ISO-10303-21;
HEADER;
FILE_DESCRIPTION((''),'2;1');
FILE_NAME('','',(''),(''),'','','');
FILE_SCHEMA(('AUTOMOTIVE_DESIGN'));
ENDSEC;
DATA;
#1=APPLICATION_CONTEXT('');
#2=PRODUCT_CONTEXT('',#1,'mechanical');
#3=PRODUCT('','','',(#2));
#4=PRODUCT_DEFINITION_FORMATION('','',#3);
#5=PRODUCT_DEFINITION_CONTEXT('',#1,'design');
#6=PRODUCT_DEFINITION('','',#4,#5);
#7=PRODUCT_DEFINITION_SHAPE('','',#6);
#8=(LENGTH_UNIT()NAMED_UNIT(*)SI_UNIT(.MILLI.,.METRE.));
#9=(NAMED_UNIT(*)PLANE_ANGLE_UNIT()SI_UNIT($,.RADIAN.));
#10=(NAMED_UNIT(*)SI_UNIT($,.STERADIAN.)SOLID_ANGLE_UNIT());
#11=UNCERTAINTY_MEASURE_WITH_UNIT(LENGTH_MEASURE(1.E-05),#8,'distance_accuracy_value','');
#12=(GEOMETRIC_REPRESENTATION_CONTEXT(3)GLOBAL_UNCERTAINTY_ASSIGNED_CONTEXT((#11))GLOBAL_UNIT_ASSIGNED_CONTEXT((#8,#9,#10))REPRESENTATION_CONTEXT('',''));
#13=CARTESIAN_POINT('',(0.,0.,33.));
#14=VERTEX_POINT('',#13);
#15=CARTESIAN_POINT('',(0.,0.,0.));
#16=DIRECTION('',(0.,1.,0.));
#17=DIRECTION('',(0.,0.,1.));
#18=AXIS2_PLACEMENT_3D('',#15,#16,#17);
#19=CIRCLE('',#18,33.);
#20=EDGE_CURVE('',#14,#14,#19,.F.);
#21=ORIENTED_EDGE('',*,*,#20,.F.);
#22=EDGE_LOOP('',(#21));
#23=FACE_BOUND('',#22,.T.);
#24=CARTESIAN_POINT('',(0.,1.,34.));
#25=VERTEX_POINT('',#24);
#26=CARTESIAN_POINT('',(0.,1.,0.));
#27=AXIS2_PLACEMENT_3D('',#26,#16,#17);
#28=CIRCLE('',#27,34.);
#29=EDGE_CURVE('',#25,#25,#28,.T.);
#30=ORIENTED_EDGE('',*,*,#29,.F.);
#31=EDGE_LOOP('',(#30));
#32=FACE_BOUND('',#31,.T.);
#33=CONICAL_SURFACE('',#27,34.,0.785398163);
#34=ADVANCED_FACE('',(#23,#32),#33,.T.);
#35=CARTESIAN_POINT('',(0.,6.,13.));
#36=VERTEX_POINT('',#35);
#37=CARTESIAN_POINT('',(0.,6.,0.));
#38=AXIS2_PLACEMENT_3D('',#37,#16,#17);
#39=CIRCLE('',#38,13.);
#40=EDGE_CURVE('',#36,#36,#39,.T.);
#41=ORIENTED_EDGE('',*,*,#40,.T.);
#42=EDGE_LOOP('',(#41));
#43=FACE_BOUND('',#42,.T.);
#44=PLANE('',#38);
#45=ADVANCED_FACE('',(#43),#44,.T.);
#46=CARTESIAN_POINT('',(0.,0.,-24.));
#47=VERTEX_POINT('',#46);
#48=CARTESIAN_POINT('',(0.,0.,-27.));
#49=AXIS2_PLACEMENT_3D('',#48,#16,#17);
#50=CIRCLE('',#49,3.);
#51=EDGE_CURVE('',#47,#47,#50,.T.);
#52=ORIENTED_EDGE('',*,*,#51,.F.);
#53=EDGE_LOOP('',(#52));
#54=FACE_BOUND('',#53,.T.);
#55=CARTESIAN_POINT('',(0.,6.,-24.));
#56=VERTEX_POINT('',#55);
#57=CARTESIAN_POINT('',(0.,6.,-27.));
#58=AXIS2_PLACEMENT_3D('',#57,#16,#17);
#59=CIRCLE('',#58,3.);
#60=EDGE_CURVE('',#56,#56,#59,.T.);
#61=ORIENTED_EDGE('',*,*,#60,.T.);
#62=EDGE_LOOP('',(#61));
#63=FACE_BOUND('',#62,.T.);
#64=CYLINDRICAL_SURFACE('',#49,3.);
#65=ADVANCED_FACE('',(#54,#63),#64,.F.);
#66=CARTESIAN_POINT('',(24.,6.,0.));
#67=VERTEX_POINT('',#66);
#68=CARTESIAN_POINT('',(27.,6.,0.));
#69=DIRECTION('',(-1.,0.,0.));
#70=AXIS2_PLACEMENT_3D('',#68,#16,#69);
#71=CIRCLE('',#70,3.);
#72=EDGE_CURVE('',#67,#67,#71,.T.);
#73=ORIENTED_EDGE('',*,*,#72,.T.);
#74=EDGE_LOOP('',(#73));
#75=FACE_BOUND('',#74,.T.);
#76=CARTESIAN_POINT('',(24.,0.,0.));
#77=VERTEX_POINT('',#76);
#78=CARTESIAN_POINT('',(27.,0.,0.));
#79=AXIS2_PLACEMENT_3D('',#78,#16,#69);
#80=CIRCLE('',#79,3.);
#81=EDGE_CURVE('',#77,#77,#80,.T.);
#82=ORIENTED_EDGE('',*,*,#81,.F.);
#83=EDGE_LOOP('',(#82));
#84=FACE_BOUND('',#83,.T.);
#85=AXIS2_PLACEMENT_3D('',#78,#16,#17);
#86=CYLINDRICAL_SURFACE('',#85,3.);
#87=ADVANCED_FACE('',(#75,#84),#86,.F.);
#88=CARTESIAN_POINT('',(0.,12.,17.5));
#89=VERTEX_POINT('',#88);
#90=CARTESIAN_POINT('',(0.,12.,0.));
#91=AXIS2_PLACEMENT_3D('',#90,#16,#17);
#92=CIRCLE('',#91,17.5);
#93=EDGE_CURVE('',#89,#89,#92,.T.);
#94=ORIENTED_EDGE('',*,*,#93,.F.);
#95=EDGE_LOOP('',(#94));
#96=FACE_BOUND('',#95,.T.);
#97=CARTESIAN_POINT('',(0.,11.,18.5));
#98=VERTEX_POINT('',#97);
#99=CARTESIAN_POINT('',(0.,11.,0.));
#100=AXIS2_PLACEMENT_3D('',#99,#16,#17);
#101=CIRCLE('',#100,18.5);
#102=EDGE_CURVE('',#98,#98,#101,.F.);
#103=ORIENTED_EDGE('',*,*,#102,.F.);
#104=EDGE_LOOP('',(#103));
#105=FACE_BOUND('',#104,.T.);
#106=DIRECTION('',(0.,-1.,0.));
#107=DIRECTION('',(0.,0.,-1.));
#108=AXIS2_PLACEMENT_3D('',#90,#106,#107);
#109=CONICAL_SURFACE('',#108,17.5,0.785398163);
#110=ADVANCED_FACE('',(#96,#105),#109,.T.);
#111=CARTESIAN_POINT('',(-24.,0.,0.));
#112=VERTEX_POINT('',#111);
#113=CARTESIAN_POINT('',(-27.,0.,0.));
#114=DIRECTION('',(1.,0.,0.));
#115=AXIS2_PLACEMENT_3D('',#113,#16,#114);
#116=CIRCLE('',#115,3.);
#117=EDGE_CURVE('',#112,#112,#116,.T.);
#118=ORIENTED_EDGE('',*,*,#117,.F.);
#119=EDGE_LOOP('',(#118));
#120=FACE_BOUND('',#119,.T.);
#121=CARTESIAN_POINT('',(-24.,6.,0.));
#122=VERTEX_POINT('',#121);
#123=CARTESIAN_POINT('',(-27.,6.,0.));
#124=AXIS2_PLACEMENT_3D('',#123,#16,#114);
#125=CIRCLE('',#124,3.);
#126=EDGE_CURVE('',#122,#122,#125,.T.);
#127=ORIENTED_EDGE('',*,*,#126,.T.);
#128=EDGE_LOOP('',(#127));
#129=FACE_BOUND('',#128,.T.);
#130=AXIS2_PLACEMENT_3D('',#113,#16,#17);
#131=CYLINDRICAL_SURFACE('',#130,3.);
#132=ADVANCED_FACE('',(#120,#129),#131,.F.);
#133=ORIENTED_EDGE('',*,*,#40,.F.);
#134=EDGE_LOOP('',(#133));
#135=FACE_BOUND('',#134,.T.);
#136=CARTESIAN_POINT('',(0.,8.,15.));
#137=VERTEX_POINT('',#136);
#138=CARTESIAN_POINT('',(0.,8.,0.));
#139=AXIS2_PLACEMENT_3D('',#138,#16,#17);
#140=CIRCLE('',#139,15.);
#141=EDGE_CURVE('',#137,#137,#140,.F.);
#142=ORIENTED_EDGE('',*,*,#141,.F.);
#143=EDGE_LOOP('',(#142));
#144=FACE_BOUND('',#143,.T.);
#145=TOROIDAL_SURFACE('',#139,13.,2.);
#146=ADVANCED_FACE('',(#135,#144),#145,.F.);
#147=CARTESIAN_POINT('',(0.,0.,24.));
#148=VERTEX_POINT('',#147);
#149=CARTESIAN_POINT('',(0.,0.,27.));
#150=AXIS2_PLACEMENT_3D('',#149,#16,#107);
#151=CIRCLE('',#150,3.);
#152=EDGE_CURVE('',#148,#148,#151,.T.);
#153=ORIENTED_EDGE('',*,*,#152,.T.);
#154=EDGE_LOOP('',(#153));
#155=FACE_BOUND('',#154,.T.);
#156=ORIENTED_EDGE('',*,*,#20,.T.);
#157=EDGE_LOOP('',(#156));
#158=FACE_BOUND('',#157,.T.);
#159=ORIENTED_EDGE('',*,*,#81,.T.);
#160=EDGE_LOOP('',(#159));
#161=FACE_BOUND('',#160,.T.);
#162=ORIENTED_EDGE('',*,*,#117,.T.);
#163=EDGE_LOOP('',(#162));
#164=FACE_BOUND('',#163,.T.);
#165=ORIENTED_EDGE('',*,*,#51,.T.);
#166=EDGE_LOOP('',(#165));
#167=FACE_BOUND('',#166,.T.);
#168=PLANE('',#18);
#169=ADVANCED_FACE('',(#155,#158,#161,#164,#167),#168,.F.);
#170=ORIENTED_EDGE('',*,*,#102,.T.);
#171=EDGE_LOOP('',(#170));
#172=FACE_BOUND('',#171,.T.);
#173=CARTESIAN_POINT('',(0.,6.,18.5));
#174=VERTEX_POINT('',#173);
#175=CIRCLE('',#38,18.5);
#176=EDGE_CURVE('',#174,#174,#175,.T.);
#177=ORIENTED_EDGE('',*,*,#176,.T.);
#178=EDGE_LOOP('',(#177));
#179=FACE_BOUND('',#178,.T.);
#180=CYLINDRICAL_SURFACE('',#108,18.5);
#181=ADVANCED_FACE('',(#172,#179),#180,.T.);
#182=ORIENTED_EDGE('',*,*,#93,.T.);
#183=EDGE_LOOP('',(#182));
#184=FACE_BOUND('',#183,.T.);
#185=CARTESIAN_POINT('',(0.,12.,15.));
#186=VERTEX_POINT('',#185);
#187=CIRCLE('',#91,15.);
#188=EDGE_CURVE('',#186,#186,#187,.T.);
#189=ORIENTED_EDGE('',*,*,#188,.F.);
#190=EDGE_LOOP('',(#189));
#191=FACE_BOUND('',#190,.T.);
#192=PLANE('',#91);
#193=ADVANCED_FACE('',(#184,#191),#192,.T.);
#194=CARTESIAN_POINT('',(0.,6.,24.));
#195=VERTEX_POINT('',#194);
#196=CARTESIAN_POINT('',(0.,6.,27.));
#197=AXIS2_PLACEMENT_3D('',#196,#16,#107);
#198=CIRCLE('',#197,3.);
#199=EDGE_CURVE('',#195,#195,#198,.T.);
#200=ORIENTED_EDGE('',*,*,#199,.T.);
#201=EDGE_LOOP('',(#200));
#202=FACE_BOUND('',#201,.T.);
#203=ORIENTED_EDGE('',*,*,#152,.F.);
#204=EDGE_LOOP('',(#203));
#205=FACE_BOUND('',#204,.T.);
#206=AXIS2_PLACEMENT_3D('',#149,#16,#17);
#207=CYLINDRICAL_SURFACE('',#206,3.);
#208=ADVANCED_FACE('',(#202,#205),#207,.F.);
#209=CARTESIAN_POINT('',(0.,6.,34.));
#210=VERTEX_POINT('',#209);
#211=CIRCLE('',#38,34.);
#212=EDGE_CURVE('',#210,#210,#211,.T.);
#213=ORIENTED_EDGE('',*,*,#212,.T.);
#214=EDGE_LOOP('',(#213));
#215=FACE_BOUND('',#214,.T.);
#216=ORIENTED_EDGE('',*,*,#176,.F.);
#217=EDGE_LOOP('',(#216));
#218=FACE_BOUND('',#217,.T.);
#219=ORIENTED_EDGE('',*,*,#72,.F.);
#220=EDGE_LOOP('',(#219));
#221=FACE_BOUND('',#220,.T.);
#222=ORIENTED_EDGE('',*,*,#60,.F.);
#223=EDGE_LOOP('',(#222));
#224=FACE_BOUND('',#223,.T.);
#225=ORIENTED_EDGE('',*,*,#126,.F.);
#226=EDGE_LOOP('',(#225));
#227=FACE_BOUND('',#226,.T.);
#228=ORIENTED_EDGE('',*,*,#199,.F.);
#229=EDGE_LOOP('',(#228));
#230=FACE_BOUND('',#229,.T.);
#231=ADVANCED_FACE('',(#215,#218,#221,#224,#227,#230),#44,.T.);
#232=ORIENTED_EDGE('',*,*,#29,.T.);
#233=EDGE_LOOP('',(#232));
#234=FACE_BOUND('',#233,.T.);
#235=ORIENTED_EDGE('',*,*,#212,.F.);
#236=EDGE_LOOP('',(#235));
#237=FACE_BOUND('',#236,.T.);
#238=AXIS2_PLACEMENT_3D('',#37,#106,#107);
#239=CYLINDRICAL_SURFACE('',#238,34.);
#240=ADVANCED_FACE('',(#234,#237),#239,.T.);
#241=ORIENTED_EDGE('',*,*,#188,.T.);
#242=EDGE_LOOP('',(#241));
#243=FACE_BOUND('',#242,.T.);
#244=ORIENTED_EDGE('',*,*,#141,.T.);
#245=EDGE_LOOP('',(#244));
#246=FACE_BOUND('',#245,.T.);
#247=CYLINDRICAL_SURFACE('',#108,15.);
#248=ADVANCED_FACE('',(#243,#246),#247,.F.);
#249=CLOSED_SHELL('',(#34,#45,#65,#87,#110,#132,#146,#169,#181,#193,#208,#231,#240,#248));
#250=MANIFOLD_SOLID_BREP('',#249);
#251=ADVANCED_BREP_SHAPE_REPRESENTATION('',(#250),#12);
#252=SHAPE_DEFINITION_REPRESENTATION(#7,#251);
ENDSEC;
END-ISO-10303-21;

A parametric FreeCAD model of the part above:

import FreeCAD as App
import Part
import Sketcher
from FreeCAD import Vector
Q = App.Units.Quantity


def edges_at(feature, points):
    """Names of the edges that pass closest to the given points."""
    edges = feature.Shape.Edges
    near = lambda p: min(range(len(edges)), key=lambda i: edges[i].distToShape(Part.Vertex(*p))[0])
    return sorted({f"Edge{near(p) + 1}" for p in points})

doc = App.newDocument("Part")
body = doc.addObject("PartDesign::Body", "Body")

# Sketch on XZ plane
sketch1 = body.newObject("Sketcher::SketchObject", "Sketch")
sketch1.AttachmentSupport = (doc.getObject("XZ_Plane"), [""])
sketch1.MapMode = "FlatFace"
sketch1.addGeometry(Part.Circle(Vector(0, 0, 0), Vector(0, 0, 1), 34), False)
sketch1.addConstraint([
    Sketcher.Constraint("Coincident", 0, 3, -1, 1),
    Sketcher.Constraint("Diameter", 0, Q("68 mm")),
])
pad1 = body.newObject("PartDesign::Pad", "Pad")
pad1.Profile = sketch1
pad1.Length = 6
pad1.Reversed = True

# Sketch on XZ plane
sketch2 = body.newObject("Sketcher::SketchObject", "Sketch001")
sketch2.AttachmentSupport = (doc.getObject("XZ_Plane"), [""])
sketch2.MapMode = "FlatFace"
sketch2.AttachmentOffset = App.Placement(Vector(0, 0, -6), App.Rotation())
sketch2.addGeometry([
    Part.Circle(Vector(0, 0, 0), Vector(0, 0, 1), 18.5),
    Part.Circle(Vector(0, 0, 0), Vector(0, 0, 1), 15),
], False)
sketch2.addConstraint([
    Sketcher.Constraint("Coincident", 0, 3, -1, 1),
    Sketcher.Constraint("Coincident", 1, 3, -1, 1),
    Sketcher.Constraint("Diameter", 0, Q("37 mm")),
    Sketcher.Constraint("Diameter", 1, Q("30 mm")),
])
pad2 = body.newObject("PartDesign::Pad", "Pad001")
pad2.Profile = sketch2
pad2.Length = 6
pad2.Reversed = True

# Sketch on XZ plane
sketch3 = body.newObject("Sketcher::SketchObject", "Sketch002")
sketch3.AttachmentSupport = (doc.getObject("XZ_Plane"), [""])
sketch3.MapMode = "FlatFace"
sketch3.AttachmentOffset = App.Placement(Vector(0, 0, -6), App.Rotation())
sketch3.addGeometry(Part.Circle(Vector(0, -27, 0), Vector(0, 0, 1), 3), False)
sketch3.addConstraint([
    Sketcher.Constraint("PointOnObject", 0, 3, -2),
    Sketcher.Constraint("Diameter", 0, Q("6 mm")),
    Sketcher.Constraint("DistanceY", 0, 3, -1, 1, Q("27 mm")),
])
pocket1 = body.newObject("PartDesign::Pocket", "Pocket")
pocket1.Profile = sketch3
pocket1.Length = 6
pocket1.Reversed = True
doc.recompute()

polarpattern = body.newObject("PartDesign::PolarPattern", "PolarPattern")
polarpattern.Originals = [pocket1]
polarpattern.Axis = (doc.getObject("Y_Axis"), [""])
polarpattern.Angle = 360
polarpattern.Occurrences = 4
body.Tip = polarpattern
doc.recompute()

fillet = body.newObject("PartDesign::Fillet", "Fillet")
fillet.Base = (polarpattern, edges_at(polarpattern, [(0, 6, -15)]))
fillet.Radius = 2
doc.recompute()

chamfer = body.newObject("PartDesign::Chamfer", "Chamfer")
chamfer.Base = (fillet, edges_at(fillet, [(0, 12, -18.5), (0, 0, -34)]))
chamfer.Size = 1

doc.recompute()
